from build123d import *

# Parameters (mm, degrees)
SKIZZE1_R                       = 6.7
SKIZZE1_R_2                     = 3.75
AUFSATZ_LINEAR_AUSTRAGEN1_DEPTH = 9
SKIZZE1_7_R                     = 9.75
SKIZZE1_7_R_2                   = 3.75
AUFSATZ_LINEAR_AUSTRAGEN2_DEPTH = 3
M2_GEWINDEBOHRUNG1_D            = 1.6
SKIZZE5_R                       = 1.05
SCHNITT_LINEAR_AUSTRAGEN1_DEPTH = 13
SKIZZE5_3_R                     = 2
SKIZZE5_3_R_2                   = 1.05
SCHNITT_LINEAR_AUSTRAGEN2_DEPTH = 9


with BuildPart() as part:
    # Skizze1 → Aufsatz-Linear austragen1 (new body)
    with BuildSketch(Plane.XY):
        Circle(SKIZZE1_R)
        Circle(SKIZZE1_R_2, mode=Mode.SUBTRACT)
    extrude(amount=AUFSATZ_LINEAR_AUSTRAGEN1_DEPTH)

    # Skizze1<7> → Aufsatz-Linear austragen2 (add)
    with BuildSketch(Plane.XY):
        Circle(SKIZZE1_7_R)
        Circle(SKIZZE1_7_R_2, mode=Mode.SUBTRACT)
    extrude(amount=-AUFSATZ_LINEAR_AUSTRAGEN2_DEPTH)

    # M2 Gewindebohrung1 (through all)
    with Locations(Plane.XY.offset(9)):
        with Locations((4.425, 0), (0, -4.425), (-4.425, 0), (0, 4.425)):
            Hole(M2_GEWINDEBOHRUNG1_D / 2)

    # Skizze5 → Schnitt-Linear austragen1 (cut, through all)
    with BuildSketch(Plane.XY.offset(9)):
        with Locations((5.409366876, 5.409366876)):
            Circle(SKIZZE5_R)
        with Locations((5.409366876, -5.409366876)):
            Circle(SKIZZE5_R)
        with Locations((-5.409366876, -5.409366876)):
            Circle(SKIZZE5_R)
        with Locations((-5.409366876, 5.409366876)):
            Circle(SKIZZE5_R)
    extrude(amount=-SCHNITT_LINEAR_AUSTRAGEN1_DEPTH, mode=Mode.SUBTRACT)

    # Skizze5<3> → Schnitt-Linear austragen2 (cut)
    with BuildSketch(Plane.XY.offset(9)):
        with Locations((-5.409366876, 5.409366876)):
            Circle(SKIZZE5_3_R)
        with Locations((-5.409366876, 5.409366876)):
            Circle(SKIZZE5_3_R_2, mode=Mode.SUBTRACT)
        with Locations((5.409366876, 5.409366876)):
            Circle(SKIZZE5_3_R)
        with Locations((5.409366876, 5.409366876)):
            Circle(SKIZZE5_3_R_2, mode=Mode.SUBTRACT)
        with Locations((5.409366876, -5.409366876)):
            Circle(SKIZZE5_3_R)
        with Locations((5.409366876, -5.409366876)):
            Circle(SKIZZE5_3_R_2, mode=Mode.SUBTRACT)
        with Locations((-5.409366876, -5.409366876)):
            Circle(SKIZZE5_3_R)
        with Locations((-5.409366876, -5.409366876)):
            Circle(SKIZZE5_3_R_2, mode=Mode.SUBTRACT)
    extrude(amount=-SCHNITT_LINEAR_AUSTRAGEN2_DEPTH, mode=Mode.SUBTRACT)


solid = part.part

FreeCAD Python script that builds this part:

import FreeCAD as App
import Part
import Sketcher
from FreeCAD import Vector
Q = App.Units.Quantity

doc = App.newDocument("Part")
body = doc.addObject("PartDesign::Body", "Body")

# Sketch on XY plane
sketch1 = doc.addObject("Sketcher::SketchObject", "Sketch")
body.addObject(sketch1)
sketch1.AttachmentSupport = (doc.XY_Plane, [""])
sketch1.MapMode = "FlatFace"
sketch1.addGeometry(Part.Circle(Vector(0, 0, 0), Vector(0, 0, 1), 6.7), False)
sketch1.addGeometry(Part.Circle(Vector(0, 0, 0), Vector(0, 0, 1), 3.8), False)
sketch1.addConstraint(Sketcher.Constraint("Coincident", 0, 3, -1, 1))
sketch1.addConstraint(Sketcher.Constraint("Coincident", 1, 3, -1, 1))
sketch1.addConstraint(Sketcher.Constraint("Diameter", 0, Q("13.4 mm")))
sketch1.addConstraint(Sketcher.Constraint("Diameter", 1, Q("7.5 mm")))
pad1 = doc.addObject("PartDesign::Pad", "Pad")
body.addObject(pad1)
pad1.Profile = sketch1
pad1.Length = 9

# Sketch on XY plane
sketch2 = doc.addObject("Sketcher::SketchObject", "Sketch001")
body.addObject(sketch2)
sketch2.AttachmentSupport = (doc.XY_Plane, [""])
sketch2.MapMode = "FlatFace"
sketch2.addGeometry(Part.Circle(Vector(0, 0, 0), Vector(0, 0, 1), 9.8), False)
sketch2.addGeometry(Part.Circle(Vector(0, 0, 0), Vector(0, 0, 1), 3.8), False)
sketch2.addConstraint(Sketcher.Constraint("Coincident", 0, 3, -1, 1))
sketch2.addConstraint(Sketcher.Constraint("Coincident", 1, 3, -1, 1))
sketch2.addConstraint(Sketcher.Constraint("Diameter", 0, Q("19.5 mm")))
sketch2.addConstraint(Sketcher.Constraint("Diameter", 1, Q("7.5 mm")))
pad2 = doc.addObject("PartDesign::Pad", "Pad001")
body.addObject(pad2)
pad2.Profile = sketch2
pad2.Length = 3
pad2.Reversed = True

# Sketch on XY plane
sketch3 = doc.addObject("Sketcher::SketchObject", "Sketch002")
body.addObject(sketch3)
sketch3.AttachmentSupport = (doc.XY_Plane, [""])
sketch3.MapMode = "FlatFace"
sketch3.AttachmentOffset = App.Placement(Vector(0, 0, 9), App.Rotation())
sketch3.addGeometry(Part.Circle(Vector(4.4, 0, 0), Vector(0, 0, 1), 0.8), False)
sketch3.addGeometry(Part.Circle(Vector(0, -4.4, 0), Vector(0, 0, 1), 0.8), False)
sketch3.addGeometry(Part.Circle(Vector(-4.4, 0, 0), Vector(0, 0, 1), 0.8), False)
sketch3.addGeometry(Part.Circle(Vector(0, 4.4, 0), Vector(0, 0, 1), 0.8), False)
sketch3.addConstraint(Sketcher.Constraint("Equal", 0, 1))
sketch3.addConstraint(Sketcher.Constraint("Equal", 1, 2))
sketch3.addConstraint(Sketcher.Constraint("Equal", 2, 3))
sketch3.addConstraint(Sketcher.Constraint("Symmetric", 0, 3, 2, 3, -1, 1))
sketch3.addConstraint(Sketcher.Constraint("Symmetric", 1, 3, 3, 3, -1, 1))
sketch3.addConstraint(Sketcher.Constraint("PointOnObject", 0, 3, -1))
sketch3.addConstraint(Sketcher.Constraint("PointOnObject", 1, 3, -2))
sketch3.addConstraint(Sketcher.Constraint("Diameter", 0, Q("1.6 mm")))
sketch3.addConstraint(Sketcher.Constraint("DistanceX", 2, 3, 0, 3, Q("8.85 mm")))
sketch3.addConstraint(Sketcher.Constraint("DistanceY", 1, 3, 3, 3, Q("8.85 mm")))
doc.recompute()
hole = doc.addObject("PartDesign::Hole", "Hole")
body.addObject(hole)
hole.Profile = sketch3
hole.ThreadType = "None"
hole.Diameter = 1.6
hole.DepthType = "ThroughAll"

# Sketch on XY plane
sketch4 = doc.addObject("Sketcher::SketchObject", "Sketch003")
body.addObject(sketch4)
sketch4.AttachmentSupport = (doc.XY_Plane, [""])
sketch4.MapMode = "FlatFace"
sketch4.AttachmentOffset = App.Placement(Vector(0, 0, 9), App.Rotation())
sketch4.addGeometry(Part.Circle(Vector(5.4, 5.4, 0), Vector(0, 0, 1), 1.1), False)
sketch4.addGeometry(Part.Circle(Vector(5.4, -5.4, 0), Vector(0, 0, 1), 1.1), False)
sketch4.addGeometry(Part.Circle(Vector(-5.4, -5.4, 0), Vector(0, 0, 1), 1.1), False)
sketch4.addGeometry(Part.Circle(Vector(-5.4, 5.4, 0), Vector(0, 0, 1), 1.1), False)
sketch4.addConstraint(Sketcher.Constraint("Equal", 0, 1))
sketch4.addConstraint(Sketcher.Constraint("Equal", 1, 2))
sketch4.addConstraint(Sketcher.Constraint("Equal", 2, 3))
sketch4.addConstraint(Sketcher.Constraint("Symmetric", 0, 3, 2, 3, -1, 1))
sketch4.addConstraint(Sketcher.Constraint("Symmetric", 1, 3, 3, 3, -1, 1))
sketch4.addConstraint(Sketcher.Constraint("Symmetric", 1, 3, 2, 3, -2))
sketch4.addConstraint(Sketcher.Constraint("Diameter", 0, Q("2.1 mm")))
sketch4.addConstraint(Sketcher.Constraint("DistanceX", -1, 1, 0, 3, Q("5.409367 mm")))
sketch4.addConstraint(Sketcher.Constraint("DistanceY", -1, 1, 0, 3, Q("5.409367 mm")))
pocket1 = doc.addObject("PartDesign::Pocket", "Pocket")
body.addObject(pocket1)
pocket1.Profile = sketch4
pocket1.Type = "ThroughAll"

# Sketch on XY plane
sketch5 = doc.addObject("Sketcher::SketchObject", "Sketch004")
body.addObject(sketch5)
sketch5.AttachmentSupport = (doc.XY_Plane, [""])
sketch5.MapMode = "FlatFace"
sketch5.AttachmentOffset = App.Placement(Vector(0, 0, 9), App.Rotation())
sketch5.addGeometry(Part.Circle(Vector(-5.4, 5.4, 0), Vector(0, 0, 1), 2), False)
sketch5.addGeometry(Part.Circle(Vector(-5.4, 5.4, 0), Vector(0, 0, 1), 1.1), False)
sketch5.addGeometry(Part.Circle(Vector(5.4, 5.4, 0), Vector(0, 0, 1), 2), False)
sketch5.addGeometry(Part.Circle(Vector(5.4, 5.4, 0), Vector(0, 0, 1), 1.1), False)
sketch5.addGeometry(Part.Circle(Vector(5.4, -5.4, 0), Vector(0, 0, 1), 2), False)
sketch5.addGeometry(Part.Circle(Vector(5.4, -5.4, 0), Vector(0, 0, 1), 1.1), False)
sketch5.addGeometry(Part.Circle(Vector(-5.4, -5.4, 0), Vector(0, 0, 1), 2), False)
sketch5.addGeometry(Part.Circle(Vector(-5.4, -5.4, 0), Vector(0, 0, 1), 1.1), False)
sketch5.addConstraint(Sketcher.Constraint("Coincident", 1, 3, 0, 3))
sketch5.addConstraint(Sketcher.Constraint("Coincident", 3, 3, 2, 3))
sketch5.addConstraint(Sketcher.Constraint("Coincident", 5, 3, 4, 3))
sketch5.addConstraint(Sketcher.Constraint("Coincident", 7, 3, 6, 3))
sketch5.addConstraint(Sketcher.Constraint("Equal", 0, 2))
sketch5.addConstraint(Sketcher.Constraint("Equal", 1, 3))
sketch5.addConstraint(Sketcher.Constraint("Equal", 2, 4))
sketch5.addConstraint(Sketcher.Constraint("Equal", 3, 5))
sketch5.addConstraint(Sketcher.Constraint("Equal", 4, 6))
sketch5.addConstraint(Sketcher.Constraint("Equal", 5, 7))
sketch5.addConstraint(Sketcher.Constraint("Symmetric", 0, 3, 4, 3, -1, 1))
sketch5.addConstraint(Sketcher.Constraint("Symmetric", 2, 3, 6, 3, -1, 1))
sketch5.addConstraint(Sketcher.Constraint("Symmetric", 0, 3, 2, 3, -2))
sketch5.addConstraint(Sketcher.Constraint("Diameter", 0, Q("4 mm")))
sketch5.addConstraint(Sketcher.Constraint("Diameter", 1, Q("2.1 mm")))
sketch5.addConstraint(Sketcher.Constraint("DistanceX", 0, 3, -1, 1, Q("5.409367 mm")))
sketch5.addConstraint(Sketcher.Constraint("DistanceY", -1, 1, 0, 3, Q("5.409367 mm")))
pocket2 = doc.addObject("PartDesign::Pocket", "Pocket001")
body.addObject(pocket2)
pocket2.Profile = sketch5
pocket2.Length = 9

doc.recompute()
